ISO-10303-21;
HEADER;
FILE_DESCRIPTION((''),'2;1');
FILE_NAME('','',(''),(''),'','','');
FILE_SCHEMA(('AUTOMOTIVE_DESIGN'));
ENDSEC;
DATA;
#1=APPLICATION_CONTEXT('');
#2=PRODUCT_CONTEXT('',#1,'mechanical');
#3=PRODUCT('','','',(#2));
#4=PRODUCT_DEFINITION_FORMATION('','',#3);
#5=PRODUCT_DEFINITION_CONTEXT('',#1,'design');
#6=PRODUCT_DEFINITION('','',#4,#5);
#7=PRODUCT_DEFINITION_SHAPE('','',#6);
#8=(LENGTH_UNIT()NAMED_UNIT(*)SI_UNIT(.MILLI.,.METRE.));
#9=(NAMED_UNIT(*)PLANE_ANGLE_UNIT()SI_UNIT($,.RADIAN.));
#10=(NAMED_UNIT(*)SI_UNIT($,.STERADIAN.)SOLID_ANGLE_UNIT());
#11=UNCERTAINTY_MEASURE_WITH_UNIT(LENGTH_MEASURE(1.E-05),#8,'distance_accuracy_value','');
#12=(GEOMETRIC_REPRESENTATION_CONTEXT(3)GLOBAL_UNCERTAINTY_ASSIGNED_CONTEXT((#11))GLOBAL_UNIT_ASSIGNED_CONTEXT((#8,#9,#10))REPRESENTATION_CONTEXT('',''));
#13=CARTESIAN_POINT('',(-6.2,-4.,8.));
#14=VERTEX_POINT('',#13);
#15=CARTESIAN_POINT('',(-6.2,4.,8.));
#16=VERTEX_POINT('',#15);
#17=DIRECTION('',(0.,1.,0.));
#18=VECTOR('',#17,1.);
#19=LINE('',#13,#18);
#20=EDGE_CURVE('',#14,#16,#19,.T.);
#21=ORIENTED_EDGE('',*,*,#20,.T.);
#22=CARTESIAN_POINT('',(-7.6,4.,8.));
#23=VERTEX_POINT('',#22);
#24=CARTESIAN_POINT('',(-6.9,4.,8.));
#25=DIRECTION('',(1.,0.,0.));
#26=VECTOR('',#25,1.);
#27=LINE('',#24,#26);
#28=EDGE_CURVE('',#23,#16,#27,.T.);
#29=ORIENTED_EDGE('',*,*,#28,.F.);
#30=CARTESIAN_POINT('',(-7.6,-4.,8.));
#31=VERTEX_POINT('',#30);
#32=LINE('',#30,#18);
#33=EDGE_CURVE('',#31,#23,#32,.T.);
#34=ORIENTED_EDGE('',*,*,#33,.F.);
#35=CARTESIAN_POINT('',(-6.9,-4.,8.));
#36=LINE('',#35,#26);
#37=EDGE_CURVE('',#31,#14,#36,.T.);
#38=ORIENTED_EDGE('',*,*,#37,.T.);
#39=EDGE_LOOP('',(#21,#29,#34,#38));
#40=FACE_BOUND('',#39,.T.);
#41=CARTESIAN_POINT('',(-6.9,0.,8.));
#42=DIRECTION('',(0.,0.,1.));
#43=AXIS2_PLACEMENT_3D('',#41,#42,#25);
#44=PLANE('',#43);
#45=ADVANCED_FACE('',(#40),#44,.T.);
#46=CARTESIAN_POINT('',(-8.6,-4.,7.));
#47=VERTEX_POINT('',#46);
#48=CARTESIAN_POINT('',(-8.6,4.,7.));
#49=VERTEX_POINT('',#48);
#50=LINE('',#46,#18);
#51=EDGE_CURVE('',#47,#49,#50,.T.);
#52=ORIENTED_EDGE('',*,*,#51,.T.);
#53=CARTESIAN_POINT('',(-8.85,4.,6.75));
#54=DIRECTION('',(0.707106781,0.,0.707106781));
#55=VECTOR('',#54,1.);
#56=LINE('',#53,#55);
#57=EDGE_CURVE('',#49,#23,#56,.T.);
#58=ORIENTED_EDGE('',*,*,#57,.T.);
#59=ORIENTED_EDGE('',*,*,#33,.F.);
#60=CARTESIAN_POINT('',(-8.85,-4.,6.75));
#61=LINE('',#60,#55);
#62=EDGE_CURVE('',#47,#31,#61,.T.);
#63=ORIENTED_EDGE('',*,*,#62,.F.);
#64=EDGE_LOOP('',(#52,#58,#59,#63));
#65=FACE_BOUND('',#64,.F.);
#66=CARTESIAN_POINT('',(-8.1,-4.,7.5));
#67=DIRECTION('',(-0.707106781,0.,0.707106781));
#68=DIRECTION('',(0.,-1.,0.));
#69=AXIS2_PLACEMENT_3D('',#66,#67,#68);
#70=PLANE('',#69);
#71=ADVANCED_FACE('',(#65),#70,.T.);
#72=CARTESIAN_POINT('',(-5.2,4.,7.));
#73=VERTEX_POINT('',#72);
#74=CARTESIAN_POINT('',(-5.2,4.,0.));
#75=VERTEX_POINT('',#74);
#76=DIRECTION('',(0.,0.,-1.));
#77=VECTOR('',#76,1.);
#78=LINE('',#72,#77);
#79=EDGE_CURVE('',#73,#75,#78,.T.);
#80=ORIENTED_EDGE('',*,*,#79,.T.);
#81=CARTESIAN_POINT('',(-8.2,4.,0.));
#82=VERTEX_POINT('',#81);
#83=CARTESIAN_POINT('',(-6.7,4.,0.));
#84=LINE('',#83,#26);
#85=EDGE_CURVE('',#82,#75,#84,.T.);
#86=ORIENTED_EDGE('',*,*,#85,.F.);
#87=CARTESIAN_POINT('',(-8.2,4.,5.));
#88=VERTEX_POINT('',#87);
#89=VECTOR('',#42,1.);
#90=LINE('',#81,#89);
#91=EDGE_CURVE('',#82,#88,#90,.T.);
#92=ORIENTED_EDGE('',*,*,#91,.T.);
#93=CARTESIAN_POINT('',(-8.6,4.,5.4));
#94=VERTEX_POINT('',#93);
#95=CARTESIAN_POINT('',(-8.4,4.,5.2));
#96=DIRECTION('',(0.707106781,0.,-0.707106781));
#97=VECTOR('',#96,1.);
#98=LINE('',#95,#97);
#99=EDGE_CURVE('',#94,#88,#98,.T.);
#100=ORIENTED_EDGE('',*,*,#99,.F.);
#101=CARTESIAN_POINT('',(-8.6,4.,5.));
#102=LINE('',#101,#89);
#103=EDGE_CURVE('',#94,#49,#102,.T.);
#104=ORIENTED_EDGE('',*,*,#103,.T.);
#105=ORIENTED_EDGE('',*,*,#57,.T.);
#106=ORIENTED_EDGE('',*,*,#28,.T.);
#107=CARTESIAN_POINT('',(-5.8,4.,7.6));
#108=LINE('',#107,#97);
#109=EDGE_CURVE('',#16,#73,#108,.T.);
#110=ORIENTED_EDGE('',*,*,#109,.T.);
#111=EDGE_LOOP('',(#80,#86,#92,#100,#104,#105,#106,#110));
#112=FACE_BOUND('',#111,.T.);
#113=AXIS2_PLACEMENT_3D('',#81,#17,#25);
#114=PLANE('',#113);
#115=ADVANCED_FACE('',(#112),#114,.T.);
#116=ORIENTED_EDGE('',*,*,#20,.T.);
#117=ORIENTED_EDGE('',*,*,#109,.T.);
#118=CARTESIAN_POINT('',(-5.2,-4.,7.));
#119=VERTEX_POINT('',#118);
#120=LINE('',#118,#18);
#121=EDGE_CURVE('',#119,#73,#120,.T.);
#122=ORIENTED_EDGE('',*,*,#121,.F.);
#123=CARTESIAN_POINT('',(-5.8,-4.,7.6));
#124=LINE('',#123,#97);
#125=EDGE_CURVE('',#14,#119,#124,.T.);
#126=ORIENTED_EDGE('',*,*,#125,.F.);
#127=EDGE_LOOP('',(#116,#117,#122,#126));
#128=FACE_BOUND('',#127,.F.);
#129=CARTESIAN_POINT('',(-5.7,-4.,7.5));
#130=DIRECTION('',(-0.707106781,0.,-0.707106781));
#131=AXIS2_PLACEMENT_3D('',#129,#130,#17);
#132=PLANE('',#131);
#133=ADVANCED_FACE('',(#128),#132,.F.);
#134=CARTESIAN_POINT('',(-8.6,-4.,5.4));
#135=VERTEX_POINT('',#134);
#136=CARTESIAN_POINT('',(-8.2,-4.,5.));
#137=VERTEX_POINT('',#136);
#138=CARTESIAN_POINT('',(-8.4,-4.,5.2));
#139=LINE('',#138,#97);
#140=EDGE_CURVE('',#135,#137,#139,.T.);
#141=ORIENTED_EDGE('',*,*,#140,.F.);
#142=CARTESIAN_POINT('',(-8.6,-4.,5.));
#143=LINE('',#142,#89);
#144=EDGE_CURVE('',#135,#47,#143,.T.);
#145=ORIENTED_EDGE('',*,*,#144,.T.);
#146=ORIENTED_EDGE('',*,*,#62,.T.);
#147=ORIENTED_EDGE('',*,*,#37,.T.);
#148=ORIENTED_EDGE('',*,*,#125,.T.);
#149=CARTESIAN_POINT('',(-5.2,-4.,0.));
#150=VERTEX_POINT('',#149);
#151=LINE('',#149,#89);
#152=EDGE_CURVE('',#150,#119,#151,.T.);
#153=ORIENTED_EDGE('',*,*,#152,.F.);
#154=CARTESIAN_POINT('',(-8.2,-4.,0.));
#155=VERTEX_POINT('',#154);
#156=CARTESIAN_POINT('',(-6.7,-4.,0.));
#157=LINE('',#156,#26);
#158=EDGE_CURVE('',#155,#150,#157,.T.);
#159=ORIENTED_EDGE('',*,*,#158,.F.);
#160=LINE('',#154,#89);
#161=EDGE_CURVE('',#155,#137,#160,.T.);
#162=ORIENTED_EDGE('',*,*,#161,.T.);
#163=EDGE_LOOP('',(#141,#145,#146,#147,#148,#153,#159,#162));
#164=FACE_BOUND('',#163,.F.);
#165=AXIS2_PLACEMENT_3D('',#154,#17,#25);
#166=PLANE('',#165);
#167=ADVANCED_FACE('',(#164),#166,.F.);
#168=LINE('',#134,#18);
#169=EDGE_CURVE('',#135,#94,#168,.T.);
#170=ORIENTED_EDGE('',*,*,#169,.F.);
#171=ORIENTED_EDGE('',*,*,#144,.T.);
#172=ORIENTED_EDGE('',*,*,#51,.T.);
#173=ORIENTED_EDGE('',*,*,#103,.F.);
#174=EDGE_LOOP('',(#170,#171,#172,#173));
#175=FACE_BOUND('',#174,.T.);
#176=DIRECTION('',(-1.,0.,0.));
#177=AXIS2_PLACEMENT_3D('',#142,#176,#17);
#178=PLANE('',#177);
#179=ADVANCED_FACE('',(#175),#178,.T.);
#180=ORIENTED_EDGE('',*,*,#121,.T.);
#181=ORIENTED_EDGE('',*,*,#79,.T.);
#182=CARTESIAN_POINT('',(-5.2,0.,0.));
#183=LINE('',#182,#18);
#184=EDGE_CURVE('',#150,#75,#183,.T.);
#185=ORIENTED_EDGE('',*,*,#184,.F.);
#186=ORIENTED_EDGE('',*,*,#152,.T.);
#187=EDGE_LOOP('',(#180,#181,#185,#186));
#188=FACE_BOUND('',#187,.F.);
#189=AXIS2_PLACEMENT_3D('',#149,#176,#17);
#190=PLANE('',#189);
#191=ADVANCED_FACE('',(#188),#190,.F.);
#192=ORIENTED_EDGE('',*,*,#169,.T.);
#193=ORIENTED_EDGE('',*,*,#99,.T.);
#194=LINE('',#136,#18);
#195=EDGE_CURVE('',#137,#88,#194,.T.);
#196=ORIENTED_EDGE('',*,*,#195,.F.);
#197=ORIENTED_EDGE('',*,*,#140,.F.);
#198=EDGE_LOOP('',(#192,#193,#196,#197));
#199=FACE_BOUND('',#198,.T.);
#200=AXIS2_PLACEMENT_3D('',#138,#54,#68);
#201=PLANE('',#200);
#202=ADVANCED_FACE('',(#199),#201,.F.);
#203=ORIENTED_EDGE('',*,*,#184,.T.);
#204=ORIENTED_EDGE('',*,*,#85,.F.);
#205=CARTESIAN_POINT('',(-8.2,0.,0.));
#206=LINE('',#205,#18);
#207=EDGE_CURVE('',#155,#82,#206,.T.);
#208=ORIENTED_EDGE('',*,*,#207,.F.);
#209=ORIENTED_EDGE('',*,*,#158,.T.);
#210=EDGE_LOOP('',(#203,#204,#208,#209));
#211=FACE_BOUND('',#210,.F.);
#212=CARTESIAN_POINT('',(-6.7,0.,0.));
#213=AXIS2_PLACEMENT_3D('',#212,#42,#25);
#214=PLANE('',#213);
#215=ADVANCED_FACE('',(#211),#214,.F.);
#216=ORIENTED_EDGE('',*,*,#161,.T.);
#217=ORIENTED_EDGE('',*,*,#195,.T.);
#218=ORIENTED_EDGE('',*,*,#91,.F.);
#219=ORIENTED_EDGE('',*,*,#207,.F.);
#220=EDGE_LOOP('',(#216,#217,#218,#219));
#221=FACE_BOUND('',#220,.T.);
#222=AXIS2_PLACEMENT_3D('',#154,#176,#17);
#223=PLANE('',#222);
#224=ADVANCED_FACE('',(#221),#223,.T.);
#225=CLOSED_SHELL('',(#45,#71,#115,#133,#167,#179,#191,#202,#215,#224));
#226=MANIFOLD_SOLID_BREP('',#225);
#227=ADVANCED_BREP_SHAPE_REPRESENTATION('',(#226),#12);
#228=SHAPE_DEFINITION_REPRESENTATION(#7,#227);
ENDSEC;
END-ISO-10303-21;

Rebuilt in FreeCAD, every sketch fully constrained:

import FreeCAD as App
import Part
import Sketcher
Q = App.Units.Quantity


def edges_at(feature, points):
    """Names of the edges that pass closest to the given points."""
    edges = feature.Shape.Edges
    near = lambda p: min(range(len(edges)), key=lambda i: edges[i].distToShape(Part.Vertex(*p))[0])
    return sorted({f"Edge{near(p) + 1}" for p in points})

doc = App.newDocument("Part")
params = doc.addObject("Spreadsheet::Sheet", "Params")
for row, (alias, value) in enumerate([
    ("sketch1_width", "3 mm"),
    ("sketch1_height", "8 mm"),
    ("pad1_length", "5 mm"),
    ("sketch2_height", "8 mm"),
    ("sketch2_width", "3.4 mm"),
    ("pad2_length", "3 mm"),
    ("chamfer_size", "0.4 mm"),
    ("chamfer2_size", "1 mm"),
], start=1):
    params.set(f"A{row}", alias)
    params.set(f"B{row}", "=" + value)
    params.setAlias(f"B{row}", alias)

body = doc.addObject("PartDesign::Body", "Body")

sketch1 = body.newObject("Sketcher::SketchObject", "Sketch")
sketch1.AttachmentSupport = (doc.getObject("XY_Plane"), [""])
sketch1.MapMode = "FlatFace"
sketch1.addGeometry([
    Part.LineSegment(App.Vector(-8.2, 4, 0), App.Vector(-8.2, -4, 0)),
    Part.LineSegment(App.Vector(-8.2, -4, 0), App.Vector(-5.2, -4, 0)),
    Part.LineSegment(App.Vector(-5.2, -4, 0), App.Vector(-5.2, 4, 0)),
    Part.LineSegment(App.Vector(-5.2, 4, 0), App.Vector(-8.2, 4, 0)),
], False)
sketch1.addConstraint([
    Sketcher.Constraint("Coincident", 0, 2, 1, 1),
    Sketcher.Constraint("Coincident", 1, 2, 2, 1),
    Sketcher.Constraint("Coincident", 2, 2, 3, 1),
    Sketcher.Constraint("Coincident", 3, 2, 0, 1),
    Sketcher.Constraint("Vertical", 0),
    Sketcher.Constraint("Horizontal", 1),
    Sketcher.Constraint("Vertical", 2),
    Sketcher.Constraint("Horizontal", 3),
    Sketcher.Constraint("DistanceX", 1, 1, 1, 2, Q("3 mm")),
    Sketcher.Constraint("DistanceY", 0, 2, 0, 1, Q("8 mm")),
    Sketcher.Constraint("DistanceY", 0, 2, -1, 1, Q("4 mm")),
    Sketcher.Constraint("DistanceX", 0, 2, -1, 1, Q("8.2 mm")),
])
sketch1.setExpression("Constraints[8]", "Params.sketch1_width")
sketch1.setExpression("Constraints[9]", "Params.sketch1_height")
pad1 = body.newObject("PartDesign::Pad", "Pad")
pad1.Profile = sketch1
pad1.setExpression("Length", "Params.pad1_length")
body2 = doc.addObject("PartDesign::Body", "Body001")

sketch2 = body2.newObject("Sketcher::SketchObject", "Sketch001")
sketch2.AttachmentSupport = (doc.getObject("XY_Plane001"), [""])
sketch2.MapMode = "FlatFace"
sketch2.AttachmentOffset = App.Placement(App.Vector(0, 0, 5), App.Rotation())
sketch2.addGeometry([
    Part.LineSegment(App.Vector(-8.6, 4, 0), App.Vector(-8.6, -4, 0)),
    Part.LineSegment(App.Vector(-8.6, -4, 0), App.Vector(-5.2, -4, 0)),
    Part.LineSegment(App.Vector(-5.2, -4, 0), App.Vector(-5.2, 4, 0)),
    Part.LineSegment(App.Vector(-5.2, 4, 0), App.Vector(-8.6, 4, 0)),
], False)
sketch2.addConstraint([
    Sketcher.Constraint("Coincident", 0, 2, 1, 1),
    Sketcher.Constraint("Coincident", 1, 2, 2, 1),
    Sketcher.Constraint("Coincident", 2, 2, 3, 1),
    Sketcher.Constraint("Coincident", 3, 2, 0, 1),
    Sketcher.Constraint("Vertical", 0),
    Sketcher.Constraint("Horizontal", 1),
    Sketcher.Constraint("Vertical", 2),
    Sketcher.Constraint("Horizontal", 3),
    Sketcher.Constraint("DistanceY", 0, 2, 0, 1, Q("8 mm")),
    Sketcher.Constraint("DistanceX", 1, 1, 1, 2, Q("3.4 mm")),
    Sketcher.Constraint("DistanceY", 0, 2, -1, 1, Q("4 mm")),
    Sketcher.Constraint("DistanceX", 0, 2, -1, 1, Q("8.6 mm")),
])
sketch2.setExpression("Constraints[8]", "Params.sketch2_height")
sketch2.setExpression("Constraints[9]", "Params.sketch2_width")
pad2 = body2.newObject("PartDesign::Pad", "Pad001")
pad2.Profile = sketch2
pad2.setExpression("Length", "Params.pad2_length")
doc.recompute()

chamfer = body2.newObject("PartDesign::Chamfer", "Chamfer")
chamfer.Base = (pad2, edges_at(pad2, [(-8.6, 0, 5)]))
chamfer.setExpression("Size", "Params.chamfer_size")
doc.recompute()

chamfer2 = body2.newObject("PartDesign::Chamfer", "Chamfer001")
chamfer2.Base = (chamfer, edges_at(chamfer, [(-8.6, 0, 8), (-5.2, 0, 8)]))
chamfer2.setExpression("Size", "Params.chamfer2_size")
doc.recompute()

boolean = body2.newObject("PartDesign::Boolean", "Boolean")
boolean.Type = "Fuse"
boolean.addObjects([body])

doc.recompute()
